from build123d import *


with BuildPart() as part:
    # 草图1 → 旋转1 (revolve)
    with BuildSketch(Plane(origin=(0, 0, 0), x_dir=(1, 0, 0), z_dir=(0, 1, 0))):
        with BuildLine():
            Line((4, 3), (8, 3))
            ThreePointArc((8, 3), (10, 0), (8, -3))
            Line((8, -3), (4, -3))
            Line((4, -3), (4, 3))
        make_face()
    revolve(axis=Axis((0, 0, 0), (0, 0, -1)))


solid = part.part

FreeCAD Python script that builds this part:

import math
import FreeCAD as App
import Part
import Sketcher

doc = App.newDocument("Part")
body = doc.addObject("PartDesign::Body", "Body")

# Sketch on XZ plane
sketch1 = body.newObject("Sketcher::SketchObject", "Sketch")
sketch1.AttachmentSupport = (doc.getObject("XZ_Plane"), [""])
sketch1.MapMode = "FlatFace"
sketch1.addGeometry([
    Part.LineSegment(App.Vector(8, -3, 0), App.Vector(4, -3, 0)),
    Part.LineSegment(App.Vector(4, -3, 0), App.Vector(4, 3, 0)),
    Part.LineSegment(App.Vector(4, 3, 0), App.Vector(8, 3, 0)),
    Part.ArcOfCircle(Part.Circle(App.Vector(6.8, 0, 0), App.Vector(0, 0, 1), 3.2), math.radians(-67), math.radians(67)),
], False)
sketch1.addConstraint([
    Sketcher.Constraint("Coincident", 0, 2, 1, 1),
    Sketcher.Constraint("Coincident", 1, 2, 2, 1),
    Sketcher.Constraint("Coincident", 2, 2, 3, 2),
    Sketcher.Constraint("Coincident", 3, 1, 0, 1),
    Sketcher.Constraint("Horizontal", 0),
    Sketcher.Constraint("Vertical", 1),
    Sketcher.Constraint("Horizontal", 2),
    Sketcher.Constraint("Symmetric", 2, 2, 3, 1, -1),
    Sketcher.Constraint("DistanceX", 0, 2, 0, 1, 4.0),
    Sketcher.Constraint("DistanceY", 1, 1, 1, 2, 6.0),
    Sketcher.Constraint("Radius", 3, 3.25),
    Sketcher.Constraint("DistanceX", -1, 1, 0, 2, 4.0),
])
revolution = body.newObject("PartDesign::Revolution", "Revolution")
revolution.Profile = sketch1
revolution.ReferenceAxis = (sketch1, ["V_Axis"])
revolution.Angle = 360

doc.recompute()
